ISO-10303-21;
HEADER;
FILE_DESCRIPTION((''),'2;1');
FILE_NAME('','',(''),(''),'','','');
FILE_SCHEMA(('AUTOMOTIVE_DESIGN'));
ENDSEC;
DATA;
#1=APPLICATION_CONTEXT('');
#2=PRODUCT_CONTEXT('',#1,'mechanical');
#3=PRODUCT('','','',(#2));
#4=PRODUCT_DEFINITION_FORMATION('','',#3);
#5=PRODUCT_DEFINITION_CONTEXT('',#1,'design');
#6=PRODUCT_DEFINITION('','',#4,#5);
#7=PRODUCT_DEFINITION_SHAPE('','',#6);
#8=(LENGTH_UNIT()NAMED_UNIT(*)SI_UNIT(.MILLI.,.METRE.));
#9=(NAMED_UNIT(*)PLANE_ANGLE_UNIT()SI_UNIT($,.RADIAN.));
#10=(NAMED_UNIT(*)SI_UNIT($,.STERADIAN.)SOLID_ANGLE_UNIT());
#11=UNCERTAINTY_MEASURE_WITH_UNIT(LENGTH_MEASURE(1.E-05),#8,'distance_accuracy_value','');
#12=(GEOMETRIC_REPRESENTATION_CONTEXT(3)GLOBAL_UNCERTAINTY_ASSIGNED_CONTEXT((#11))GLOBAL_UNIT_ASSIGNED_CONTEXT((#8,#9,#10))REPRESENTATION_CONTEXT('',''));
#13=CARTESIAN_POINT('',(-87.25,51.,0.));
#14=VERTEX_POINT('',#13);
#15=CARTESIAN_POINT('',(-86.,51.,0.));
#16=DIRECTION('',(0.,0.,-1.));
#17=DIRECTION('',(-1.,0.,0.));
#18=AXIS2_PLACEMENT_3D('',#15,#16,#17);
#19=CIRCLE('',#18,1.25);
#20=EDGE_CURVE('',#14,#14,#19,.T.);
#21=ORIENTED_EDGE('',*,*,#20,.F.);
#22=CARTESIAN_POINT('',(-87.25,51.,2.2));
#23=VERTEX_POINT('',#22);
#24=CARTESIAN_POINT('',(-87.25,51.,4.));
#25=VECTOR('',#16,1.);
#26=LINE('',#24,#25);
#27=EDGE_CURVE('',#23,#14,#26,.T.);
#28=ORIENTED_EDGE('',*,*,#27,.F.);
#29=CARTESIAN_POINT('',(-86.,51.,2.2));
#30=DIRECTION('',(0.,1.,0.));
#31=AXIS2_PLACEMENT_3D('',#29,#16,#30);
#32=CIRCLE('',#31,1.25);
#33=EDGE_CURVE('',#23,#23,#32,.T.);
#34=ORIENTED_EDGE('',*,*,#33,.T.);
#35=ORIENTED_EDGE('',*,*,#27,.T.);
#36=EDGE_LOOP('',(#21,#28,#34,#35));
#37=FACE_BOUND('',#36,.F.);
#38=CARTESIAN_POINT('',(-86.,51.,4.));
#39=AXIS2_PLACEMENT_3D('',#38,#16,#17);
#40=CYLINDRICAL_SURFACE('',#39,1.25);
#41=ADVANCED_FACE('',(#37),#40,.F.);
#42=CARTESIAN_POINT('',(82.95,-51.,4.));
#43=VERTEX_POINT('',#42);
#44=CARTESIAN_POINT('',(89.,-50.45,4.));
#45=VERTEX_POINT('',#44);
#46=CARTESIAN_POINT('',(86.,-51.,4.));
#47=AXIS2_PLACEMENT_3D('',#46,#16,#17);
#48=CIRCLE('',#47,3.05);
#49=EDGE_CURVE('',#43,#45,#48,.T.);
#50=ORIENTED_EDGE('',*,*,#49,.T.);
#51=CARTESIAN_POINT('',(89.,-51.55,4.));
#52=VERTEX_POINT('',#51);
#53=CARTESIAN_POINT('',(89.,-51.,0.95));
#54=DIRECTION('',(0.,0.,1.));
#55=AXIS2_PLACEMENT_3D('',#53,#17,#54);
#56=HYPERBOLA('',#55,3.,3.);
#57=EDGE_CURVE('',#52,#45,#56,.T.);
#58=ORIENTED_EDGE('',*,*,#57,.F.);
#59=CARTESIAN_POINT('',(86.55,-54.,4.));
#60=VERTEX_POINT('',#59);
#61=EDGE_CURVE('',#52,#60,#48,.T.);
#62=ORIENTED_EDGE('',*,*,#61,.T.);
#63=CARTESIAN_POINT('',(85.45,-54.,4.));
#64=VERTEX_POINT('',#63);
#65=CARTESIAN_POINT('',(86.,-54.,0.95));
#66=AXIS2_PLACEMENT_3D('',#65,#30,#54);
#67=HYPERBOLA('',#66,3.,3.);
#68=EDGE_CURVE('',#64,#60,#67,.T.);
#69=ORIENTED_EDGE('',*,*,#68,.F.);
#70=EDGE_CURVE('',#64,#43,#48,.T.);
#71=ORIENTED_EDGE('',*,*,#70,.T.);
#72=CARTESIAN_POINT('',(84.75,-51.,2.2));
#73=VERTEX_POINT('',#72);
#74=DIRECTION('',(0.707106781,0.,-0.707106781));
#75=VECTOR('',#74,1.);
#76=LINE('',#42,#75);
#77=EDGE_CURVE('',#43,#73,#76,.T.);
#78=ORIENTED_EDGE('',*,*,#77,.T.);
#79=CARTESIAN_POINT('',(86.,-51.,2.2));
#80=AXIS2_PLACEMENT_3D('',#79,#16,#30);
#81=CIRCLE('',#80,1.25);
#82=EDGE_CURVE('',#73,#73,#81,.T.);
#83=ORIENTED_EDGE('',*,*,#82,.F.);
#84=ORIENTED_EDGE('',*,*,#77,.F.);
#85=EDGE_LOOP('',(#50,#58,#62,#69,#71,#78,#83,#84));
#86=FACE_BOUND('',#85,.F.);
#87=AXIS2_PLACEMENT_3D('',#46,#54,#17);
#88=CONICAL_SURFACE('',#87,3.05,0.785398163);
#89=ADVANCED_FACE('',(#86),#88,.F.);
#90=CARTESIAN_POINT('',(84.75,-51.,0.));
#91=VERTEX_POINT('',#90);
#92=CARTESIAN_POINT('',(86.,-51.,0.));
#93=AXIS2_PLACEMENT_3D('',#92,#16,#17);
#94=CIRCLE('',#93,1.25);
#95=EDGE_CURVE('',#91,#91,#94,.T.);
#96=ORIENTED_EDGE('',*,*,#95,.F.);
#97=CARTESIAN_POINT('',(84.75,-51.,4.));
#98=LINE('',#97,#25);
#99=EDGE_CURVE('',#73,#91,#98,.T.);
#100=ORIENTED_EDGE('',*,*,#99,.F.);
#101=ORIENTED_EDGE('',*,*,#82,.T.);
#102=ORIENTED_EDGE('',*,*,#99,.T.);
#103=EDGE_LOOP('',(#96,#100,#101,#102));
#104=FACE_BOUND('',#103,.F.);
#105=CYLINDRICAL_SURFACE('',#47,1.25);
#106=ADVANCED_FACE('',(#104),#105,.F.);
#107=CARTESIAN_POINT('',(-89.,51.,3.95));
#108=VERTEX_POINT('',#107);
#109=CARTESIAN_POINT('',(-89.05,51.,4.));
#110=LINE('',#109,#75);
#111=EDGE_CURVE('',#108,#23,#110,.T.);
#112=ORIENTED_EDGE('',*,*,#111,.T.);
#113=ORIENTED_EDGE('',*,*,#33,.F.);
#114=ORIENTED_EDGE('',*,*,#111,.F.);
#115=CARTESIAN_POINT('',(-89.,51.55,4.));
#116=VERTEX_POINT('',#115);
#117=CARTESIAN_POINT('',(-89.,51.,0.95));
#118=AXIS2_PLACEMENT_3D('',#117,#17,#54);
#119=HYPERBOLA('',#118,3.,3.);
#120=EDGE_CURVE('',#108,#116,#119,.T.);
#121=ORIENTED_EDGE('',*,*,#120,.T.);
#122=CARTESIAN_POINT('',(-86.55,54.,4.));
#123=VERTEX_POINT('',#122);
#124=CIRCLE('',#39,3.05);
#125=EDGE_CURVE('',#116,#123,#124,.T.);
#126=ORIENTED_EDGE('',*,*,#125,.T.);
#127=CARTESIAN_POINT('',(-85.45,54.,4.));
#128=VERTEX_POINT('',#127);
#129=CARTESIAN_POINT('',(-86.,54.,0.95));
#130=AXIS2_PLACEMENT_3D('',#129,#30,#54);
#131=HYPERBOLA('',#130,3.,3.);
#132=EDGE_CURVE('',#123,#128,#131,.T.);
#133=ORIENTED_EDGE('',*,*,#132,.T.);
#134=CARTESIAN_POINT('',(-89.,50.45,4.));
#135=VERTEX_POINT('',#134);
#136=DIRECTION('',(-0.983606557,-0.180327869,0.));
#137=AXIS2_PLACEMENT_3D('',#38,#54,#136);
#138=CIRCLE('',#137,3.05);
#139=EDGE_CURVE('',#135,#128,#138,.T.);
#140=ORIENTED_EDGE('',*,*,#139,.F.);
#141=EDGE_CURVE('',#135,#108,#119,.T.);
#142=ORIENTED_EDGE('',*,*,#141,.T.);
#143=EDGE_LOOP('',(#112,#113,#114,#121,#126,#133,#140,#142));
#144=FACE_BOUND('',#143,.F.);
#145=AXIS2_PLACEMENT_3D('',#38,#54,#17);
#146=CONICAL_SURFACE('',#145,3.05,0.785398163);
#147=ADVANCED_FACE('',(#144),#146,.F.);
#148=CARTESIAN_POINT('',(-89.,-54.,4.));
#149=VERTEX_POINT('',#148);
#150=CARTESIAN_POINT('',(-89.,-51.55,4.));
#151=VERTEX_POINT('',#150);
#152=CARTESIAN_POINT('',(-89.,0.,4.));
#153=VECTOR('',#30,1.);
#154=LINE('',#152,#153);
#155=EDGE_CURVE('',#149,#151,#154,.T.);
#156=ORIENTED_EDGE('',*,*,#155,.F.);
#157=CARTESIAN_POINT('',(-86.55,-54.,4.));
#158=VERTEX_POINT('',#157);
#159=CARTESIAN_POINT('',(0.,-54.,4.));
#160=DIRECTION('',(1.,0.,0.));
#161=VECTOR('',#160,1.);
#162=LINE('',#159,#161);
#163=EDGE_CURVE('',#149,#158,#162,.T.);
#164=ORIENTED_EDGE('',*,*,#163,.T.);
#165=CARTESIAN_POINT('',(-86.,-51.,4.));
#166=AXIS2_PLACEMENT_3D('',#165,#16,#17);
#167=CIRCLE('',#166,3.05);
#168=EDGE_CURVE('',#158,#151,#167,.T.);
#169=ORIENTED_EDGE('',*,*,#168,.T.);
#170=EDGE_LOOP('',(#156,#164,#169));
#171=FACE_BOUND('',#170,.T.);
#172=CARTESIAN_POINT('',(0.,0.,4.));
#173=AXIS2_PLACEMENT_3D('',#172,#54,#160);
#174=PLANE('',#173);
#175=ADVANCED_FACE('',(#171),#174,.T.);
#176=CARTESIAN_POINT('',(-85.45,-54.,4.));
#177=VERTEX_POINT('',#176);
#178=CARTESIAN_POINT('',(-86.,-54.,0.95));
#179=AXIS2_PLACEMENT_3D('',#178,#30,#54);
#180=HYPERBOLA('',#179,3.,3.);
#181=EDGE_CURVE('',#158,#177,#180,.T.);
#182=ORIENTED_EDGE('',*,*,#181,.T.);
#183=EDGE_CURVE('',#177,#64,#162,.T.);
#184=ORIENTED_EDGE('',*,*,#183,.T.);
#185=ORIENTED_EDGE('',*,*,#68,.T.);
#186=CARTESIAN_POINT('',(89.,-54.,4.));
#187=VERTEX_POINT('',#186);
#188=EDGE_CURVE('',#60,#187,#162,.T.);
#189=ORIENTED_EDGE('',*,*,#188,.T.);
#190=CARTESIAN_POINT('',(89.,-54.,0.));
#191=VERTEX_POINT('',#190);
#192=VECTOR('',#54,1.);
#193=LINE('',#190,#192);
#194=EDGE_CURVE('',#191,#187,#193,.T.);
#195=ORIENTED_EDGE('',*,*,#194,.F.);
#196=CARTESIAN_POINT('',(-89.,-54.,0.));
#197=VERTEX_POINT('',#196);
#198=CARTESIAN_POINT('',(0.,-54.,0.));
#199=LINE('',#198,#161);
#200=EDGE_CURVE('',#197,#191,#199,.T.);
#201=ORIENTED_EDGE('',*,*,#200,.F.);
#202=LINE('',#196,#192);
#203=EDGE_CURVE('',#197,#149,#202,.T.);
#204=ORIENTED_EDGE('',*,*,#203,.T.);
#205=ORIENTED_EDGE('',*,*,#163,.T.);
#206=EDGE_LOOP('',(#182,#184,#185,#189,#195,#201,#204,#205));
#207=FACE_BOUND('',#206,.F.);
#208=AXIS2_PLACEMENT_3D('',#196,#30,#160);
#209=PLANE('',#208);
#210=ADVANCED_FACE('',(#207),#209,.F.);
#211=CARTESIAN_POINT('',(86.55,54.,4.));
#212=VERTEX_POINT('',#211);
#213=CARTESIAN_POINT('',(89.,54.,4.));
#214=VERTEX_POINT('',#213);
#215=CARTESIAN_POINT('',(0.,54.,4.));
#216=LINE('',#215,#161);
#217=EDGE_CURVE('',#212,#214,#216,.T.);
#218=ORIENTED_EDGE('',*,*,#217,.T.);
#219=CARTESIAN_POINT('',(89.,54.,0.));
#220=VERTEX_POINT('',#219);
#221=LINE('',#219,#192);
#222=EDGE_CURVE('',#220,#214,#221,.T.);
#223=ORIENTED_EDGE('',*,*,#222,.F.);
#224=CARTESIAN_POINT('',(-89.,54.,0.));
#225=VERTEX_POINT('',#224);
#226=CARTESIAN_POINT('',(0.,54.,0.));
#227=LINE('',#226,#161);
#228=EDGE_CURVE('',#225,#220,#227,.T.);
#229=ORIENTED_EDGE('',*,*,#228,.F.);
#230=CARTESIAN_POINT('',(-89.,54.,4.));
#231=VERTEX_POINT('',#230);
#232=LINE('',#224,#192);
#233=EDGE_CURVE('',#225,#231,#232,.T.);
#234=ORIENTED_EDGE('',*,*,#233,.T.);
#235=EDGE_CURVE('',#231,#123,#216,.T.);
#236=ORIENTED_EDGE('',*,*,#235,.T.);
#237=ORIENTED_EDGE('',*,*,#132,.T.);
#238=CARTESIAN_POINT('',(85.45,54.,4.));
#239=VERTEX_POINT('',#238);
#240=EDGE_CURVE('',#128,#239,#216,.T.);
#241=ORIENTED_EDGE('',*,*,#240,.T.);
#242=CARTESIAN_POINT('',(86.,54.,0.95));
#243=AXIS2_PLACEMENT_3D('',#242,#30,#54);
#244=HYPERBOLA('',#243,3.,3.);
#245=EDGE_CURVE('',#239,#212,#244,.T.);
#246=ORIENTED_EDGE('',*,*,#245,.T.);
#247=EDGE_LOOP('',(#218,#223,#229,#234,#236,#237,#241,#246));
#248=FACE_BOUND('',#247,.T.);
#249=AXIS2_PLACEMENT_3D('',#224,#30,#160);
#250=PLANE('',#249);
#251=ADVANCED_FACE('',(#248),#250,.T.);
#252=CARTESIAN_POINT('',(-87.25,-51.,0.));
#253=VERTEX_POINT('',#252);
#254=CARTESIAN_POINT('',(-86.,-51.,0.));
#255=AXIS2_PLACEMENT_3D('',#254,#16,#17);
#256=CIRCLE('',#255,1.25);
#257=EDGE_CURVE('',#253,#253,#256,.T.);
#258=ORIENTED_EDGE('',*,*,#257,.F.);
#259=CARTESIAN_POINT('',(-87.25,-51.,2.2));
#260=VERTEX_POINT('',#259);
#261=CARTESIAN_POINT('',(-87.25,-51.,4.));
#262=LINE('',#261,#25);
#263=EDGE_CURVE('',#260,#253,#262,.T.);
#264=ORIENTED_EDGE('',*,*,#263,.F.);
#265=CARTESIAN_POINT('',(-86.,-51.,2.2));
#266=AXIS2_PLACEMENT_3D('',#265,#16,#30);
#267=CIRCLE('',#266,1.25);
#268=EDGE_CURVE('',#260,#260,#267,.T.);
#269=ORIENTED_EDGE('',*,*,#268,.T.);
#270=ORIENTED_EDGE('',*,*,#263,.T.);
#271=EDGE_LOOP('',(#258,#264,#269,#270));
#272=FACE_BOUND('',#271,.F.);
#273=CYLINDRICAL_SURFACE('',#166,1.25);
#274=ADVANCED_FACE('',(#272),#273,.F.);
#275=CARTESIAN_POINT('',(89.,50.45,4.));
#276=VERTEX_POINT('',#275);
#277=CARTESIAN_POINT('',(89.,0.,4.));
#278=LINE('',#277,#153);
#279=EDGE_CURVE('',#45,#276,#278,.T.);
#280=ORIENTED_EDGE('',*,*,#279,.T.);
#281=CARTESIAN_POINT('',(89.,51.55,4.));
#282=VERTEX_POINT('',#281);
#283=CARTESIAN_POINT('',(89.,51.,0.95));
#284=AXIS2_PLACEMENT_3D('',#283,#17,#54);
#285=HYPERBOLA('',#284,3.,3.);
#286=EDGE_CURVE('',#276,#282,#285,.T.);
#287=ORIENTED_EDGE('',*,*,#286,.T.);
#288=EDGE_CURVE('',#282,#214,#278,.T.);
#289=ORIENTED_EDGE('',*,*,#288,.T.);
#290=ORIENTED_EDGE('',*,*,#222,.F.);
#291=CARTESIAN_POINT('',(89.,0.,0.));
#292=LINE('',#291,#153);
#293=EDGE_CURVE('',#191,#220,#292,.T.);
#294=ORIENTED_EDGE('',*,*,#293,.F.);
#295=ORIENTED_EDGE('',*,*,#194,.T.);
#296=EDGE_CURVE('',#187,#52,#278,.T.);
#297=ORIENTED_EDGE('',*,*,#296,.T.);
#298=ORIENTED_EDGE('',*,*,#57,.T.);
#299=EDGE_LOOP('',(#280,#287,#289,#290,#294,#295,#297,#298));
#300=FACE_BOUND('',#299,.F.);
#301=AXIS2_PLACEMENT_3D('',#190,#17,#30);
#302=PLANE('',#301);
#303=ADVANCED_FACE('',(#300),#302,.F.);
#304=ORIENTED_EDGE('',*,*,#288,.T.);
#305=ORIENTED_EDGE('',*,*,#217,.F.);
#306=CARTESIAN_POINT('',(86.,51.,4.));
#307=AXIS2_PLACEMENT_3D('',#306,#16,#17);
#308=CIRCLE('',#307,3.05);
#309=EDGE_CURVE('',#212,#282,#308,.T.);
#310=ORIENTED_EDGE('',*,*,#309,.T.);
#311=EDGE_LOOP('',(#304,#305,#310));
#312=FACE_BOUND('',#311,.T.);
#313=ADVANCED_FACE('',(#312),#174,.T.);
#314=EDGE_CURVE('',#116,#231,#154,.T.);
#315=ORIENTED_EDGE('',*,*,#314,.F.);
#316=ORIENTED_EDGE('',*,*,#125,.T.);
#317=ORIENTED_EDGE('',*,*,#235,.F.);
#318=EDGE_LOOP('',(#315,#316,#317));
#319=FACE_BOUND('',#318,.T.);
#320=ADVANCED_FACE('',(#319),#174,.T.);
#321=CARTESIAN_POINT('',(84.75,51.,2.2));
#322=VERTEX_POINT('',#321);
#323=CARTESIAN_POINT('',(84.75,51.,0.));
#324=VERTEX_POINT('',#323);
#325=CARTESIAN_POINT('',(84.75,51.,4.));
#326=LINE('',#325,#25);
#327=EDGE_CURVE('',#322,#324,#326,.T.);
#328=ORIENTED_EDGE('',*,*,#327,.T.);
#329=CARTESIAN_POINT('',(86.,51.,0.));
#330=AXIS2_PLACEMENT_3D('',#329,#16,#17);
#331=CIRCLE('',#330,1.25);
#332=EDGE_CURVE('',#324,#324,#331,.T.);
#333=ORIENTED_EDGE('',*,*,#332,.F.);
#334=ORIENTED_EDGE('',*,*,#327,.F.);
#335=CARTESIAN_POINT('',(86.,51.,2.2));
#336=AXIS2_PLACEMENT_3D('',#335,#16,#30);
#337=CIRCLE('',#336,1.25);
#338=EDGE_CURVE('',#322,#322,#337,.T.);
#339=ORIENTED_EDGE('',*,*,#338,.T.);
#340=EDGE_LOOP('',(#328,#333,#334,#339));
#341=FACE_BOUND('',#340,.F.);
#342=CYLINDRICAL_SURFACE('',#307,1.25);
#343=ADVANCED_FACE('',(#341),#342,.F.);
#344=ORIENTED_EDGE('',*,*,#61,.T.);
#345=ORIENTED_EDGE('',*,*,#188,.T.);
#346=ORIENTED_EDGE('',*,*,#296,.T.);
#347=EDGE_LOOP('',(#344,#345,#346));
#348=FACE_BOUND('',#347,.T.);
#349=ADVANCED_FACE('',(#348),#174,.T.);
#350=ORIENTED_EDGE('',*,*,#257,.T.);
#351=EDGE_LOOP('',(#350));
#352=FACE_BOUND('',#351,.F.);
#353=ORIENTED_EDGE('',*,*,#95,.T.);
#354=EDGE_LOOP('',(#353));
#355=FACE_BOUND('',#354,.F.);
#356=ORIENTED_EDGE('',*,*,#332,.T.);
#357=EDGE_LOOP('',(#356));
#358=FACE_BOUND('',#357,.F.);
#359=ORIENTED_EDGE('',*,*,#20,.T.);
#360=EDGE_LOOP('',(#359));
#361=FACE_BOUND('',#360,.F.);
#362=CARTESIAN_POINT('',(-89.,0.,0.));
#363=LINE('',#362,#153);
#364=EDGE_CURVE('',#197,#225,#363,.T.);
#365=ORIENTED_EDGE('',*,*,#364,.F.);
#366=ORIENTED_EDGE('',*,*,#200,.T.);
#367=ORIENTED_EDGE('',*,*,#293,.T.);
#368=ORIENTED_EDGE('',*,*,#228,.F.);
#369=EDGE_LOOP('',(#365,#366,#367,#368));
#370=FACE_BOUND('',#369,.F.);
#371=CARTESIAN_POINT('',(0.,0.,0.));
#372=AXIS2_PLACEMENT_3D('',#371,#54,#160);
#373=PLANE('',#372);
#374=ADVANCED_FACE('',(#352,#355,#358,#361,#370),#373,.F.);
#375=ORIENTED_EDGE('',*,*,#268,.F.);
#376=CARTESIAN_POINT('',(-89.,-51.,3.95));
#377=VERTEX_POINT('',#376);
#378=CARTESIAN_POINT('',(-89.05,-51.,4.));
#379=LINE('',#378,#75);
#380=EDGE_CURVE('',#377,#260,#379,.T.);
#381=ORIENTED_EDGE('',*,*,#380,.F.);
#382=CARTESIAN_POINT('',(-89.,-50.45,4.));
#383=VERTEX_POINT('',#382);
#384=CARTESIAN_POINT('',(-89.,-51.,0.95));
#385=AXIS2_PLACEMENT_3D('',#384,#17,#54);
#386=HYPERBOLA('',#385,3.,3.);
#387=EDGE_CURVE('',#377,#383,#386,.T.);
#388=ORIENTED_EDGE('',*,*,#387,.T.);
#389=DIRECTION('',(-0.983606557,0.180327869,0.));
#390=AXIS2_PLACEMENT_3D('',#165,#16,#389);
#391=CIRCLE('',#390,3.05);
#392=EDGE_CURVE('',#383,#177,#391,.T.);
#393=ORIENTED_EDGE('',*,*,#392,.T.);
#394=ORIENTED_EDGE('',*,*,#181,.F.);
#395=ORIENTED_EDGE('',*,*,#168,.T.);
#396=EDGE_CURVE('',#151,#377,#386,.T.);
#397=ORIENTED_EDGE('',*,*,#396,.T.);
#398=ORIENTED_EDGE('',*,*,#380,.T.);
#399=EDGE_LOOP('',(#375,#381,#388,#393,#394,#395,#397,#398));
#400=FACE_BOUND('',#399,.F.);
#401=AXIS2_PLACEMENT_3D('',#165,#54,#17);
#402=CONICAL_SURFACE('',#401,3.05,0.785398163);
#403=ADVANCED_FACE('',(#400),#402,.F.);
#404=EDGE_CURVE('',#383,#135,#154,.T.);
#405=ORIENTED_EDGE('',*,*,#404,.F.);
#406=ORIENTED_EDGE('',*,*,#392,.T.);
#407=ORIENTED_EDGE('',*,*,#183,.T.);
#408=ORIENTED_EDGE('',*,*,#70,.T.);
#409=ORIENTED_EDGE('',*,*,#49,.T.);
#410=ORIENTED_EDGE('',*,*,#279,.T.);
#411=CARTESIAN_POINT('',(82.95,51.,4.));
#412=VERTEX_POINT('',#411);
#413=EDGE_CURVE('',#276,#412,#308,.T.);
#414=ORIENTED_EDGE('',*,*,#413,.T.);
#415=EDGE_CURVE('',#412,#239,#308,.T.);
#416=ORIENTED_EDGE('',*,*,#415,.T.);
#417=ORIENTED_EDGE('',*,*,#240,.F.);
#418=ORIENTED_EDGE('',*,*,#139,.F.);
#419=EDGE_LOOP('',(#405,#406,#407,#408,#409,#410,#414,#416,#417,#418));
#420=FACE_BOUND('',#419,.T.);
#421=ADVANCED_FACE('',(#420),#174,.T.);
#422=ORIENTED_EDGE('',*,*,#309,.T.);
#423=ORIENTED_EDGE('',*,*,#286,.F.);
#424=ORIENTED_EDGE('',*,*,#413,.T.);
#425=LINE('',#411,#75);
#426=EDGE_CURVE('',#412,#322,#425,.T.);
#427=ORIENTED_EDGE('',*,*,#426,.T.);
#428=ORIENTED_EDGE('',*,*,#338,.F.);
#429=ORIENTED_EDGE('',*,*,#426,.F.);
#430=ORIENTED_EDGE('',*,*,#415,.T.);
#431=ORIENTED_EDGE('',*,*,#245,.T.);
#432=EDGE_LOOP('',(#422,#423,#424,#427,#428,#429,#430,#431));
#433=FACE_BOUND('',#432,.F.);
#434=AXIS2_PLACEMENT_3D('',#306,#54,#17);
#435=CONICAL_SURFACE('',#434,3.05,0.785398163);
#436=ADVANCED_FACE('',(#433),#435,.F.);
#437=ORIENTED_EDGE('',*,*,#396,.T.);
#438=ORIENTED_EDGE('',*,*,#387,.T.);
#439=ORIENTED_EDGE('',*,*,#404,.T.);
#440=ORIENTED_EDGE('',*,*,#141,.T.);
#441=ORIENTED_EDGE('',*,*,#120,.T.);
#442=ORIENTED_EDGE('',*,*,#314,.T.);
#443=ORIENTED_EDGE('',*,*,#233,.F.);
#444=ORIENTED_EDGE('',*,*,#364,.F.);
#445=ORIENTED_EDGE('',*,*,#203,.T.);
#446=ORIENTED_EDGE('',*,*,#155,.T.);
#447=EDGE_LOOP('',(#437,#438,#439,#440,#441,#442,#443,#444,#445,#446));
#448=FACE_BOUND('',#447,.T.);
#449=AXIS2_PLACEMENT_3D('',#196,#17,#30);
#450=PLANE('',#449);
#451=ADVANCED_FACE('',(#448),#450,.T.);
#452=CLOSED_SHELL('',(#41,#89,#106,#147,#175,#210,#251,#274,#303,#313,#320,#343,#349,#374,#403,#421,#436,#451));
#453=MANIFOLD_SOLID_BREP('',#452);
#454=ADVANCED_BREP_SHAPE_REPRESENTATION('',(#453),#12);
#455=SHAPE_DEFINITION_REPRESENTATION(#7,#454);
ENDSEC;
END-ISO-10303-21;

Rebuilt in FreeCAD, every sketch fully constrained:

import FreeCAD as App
import Part
import Sketcher
Q = App.Units.Quantity

doc = App.newDocument("Part")
body = doc.addObject("PartDesign::Body", "Body")

# Sketch on XY plane
sketch1 = body.newObject("Sketcher::SketchObject", "Sketch")
sketch1.AttachmentSupport = (doc.getObject("XY_Plane"), [""])
sketch1.MapMode = "FlatFace"
sketch1.addGeometry([
    Part.LineSegment(App.Vector(-89, 54, 0), App.Vector(-89, -54, 0)),
    Part.LineSegment(App.Vector(-89, -54, 0), App.Vector(89, -54, 0)),
    Part.LineSegment(App.Vector(89, -54, 0), App.Vector(89, 54, 0)),
    Part.LineSegment(App.Vector(89, 54, 0), App.Vector(-89, 54, 0)),
], False)
sketch1.addConstraint([
    Sketcher.Constraint("Coincident", 0, 2, 1, 1),
    Sketcher.Constraint("Coincident", 1, 2, 2, 1),
    Sketcher.Constraint("Coincident", 2, 2, 3, 1),
    Sketcher.Constraint("Coincident", 3, 2, 0, 1),
    Sketcher.Constraint("Vertical", 0),
    Sketcher.Constraint("Horizontal", 1),
    Sketcher.Constraint("Vertical", 2),
    Sketcher.Constraint("Horizontal", 3),
    Sketcher.Constraint("Symmetric", 0, 2, 2, 2, -1, 1),
    Sketcher.Constraint("DistanceX", 1, 1, 1, 2, Q("178 mm")),
    Sketcher.Constraint("DistanceY", 0, 2, 0, 1, Q("108 mm")),
])
pad1 = body.newObject("PartDesign::Pad", "Pad")
pad1.Profile = sketch1
pad1.Length = 4

# Sketch on XY plane
sketch2 = body.newObject("Sketcher::SketchObject", "Sketch001")
sketch2.AttachmentSupport = (doc.getObject("XY_Plane"), [""])
sketch2.MapMode = "FlatFace"
sketch2.AttachmentOffset = App.Placement(App.Vector(0, 0, 4), App.Rotation())
sketch2.addGeometry([
    Part.Circle(App.Vector(-86, 51, 0), App.Vector(0, 0, 1), 1.25),
    Part.Circle(App.Vector(86, 51, 0), App.Vector(0, 0, 1), 1.25),
    Part.Circle(App.Vector(86, -51, 0), App.Vector(0, 0, 1), 1.25),
    Part.Circle(App.Vector(-86, -51, 0), App.Vector(0, 0, 1), 1.25),
], False)
sketch2.addConstraint([
    Sketcher.Constraint("Equal", 0, 1),
    Sketcher.Constraint("Equal", 1, 2),
    Sketcher.Constraint("Equal", 2, 3),
    Sketcher.Constraint("Symmetric", 0, 3, 2, 3, -1, 1),
    Sketcher.Constraint("Symmetric", 1, 3, 3, 3, -1, 1),
    Sketcher.Constraint("Symmetric", 0, 3, 1, 3, -2),
    Sketcher.Constraint("Diameter", 0, Q("2.5 mm")),
    Sketcher.Constraint("DistanceX", 0, 3, -1, 1, Q("86 mm")),
    Sketcher.Constraint("DistanceY", -1, 1, 0, 3, Q("51 mm")),
])
doc.recompute()
hole = body.newObject("PartDesign::Hole", "Hole")
hole.Profile = sketch2
hole.ThreadType = "None"
hole.Diameter = 2.5
hole.DepthType = "Dimension"
hole.Depth = 25
hole.DrillPoint = "Flat"
hole.HoleCutType = "Countersink"
hole.HoleCutDiameter = 6.1
hole.HoleCutCountersinkAngle = 90

doc.recompute()
